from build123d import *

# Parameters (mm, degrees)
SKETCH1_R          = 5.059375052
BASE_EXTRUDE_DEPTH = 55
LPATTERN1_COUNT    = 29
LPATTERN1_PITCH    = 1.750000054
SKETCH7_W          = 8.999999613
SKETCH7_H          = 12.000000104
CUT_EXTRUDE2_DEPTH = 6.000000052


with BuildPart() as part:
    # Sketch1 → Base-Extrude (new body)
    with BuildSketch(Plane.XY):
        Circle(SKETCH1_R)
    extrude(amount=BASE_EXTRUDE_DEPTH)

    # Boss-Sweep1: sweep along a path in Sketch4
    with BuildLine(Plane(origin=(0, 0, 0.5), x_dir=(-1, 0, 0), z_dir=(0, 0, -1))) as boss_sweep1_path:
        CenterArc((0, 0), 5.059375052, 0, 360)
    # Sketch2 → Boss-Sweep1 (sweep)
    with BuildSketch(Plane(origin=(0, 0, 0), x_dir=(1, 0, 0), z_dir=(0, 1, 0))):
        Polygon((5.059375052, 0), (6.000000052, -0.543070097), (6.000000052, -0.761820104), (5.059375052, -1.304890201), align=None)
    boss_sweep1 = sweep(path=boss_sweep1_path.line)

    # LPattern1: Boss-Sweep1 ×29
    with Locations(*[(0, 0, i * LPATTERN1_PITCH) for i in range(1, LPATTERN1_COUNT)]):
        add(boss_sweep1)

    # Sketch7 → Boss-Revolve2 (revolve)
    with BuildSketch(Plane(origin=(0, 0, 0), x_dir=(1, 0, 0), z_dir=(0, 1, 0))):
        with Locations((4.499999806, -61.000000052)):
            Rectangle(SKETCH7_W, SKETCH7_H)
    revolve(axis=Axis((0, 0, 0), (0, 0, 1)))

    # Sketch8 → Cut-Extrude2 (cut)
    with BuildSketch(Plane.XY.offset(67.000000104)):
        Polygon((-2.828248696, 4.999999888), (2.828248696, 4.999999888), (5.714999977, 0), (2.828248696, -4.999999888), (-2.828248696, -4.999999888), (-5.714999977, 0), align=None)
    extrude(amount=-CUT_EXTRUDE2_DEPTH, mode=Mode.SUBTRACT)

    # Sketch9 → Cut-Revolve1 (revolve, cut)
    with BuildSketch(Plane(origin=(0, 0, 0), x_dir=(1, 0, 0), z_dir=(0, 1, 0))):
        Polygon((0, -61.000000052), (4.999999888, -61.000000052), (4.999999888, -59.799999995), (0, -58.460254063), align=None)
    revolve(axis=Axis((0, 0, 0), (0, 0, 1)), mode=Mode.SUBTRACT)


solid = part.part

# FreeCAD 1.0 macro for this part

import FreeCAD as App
import Part
import Sketcher
from FreeCAD import Vector
Q = App.Units.Quantity


def add_polygon(sketch, points):
    """Adds a closed chain of lines whose ends are joined by coincident constraints."""
    first, n = sketch.GeometryCount, len(points)
    for a, b in zip(points, points[1:] + points[:1]):
        sketch.addGeometry(Part.LineSegment(App.Vector(*a, 0), App.Vector(*b, 0)), False)
    for i in range(n):
        sketch.addConstraint(Sketcher.Constraint("Coincident", first + i, 2, first + (i + 1) % n, 1))

doc = App.newDocument("Part")
body = doc.addObject("PartDesign::Body", "Body")

sketch1 = doc.addObject("Sketcher::SketchObject", "Sketch")
body.addObject(sketch1)
sketch1.AttachmentSupport = (doc.XY_Plane, [""])
sketch1.MapMode = "FlatFace"
sketch1.addGeometry(Part.Circle(Vector(0, 0, 0), Vector(0, 0, 1), 5.059375), False)
sketch1.addConstraint(Sketcher.Constraint("Coincident", 0, 3, -1, 1))
sketch1.addConstraint(Sketcher.Constraint("Diameter", 0, Q("10.11875 mm")))
pad1 = doc.addObject("PartDesign::Pad", "Pad")
body.addObject(pad1)
pad1.Profile = sketch1
pad1.Length = 55

sketch2 = doc.addObject("Sketcher::SketchObject", "Sketch001")
body.addObject(sketch2)
sketch2.AttachmentSupport = (doc.XZ_Plane, [""])
sketch2.MapMode = "FlatFace"
add_polygon(sketch2, [(6, 0.54307), (5.059375, 0), (5.059375, 1.30489), (6, 0.76182)])
sketch2.addConstraint(Sketcher.Constraint("Vertical", 1))
sketch2.addConstraint(Sketcher.Constraint("Vertical", 3))
sketch2.addConstraint(Sketcher.Constraint("PointOnObject", 0, 2, -1))
sketch2.addConstraint(Sketcher.Constraint("Equal", 0, 2))
sketch2.addConstraint(Sketcher.Constraint("Angle", 0, Q("-150 deg")))
sketch2.addConstraint(Sketcher.Constraint("DistanceX", -1, 1, 2, 2, Q("6 mm")))
sketch2.addConstraint(Sketcher.Constraint("DistanceY", 1, 1, 1, 2, Q("1.30489 mm")))
sketch2.addConstraint(Sketcher.Constraint("DistanceY", 3, 2, 3, 1, Q("0.21875 mm")))

sketch3 = doc.addObject("Sketcher::SketchObject", "Sketch002")
body.addObject(sketch3)
sketch3.AttachmentSupport = (doc.XY_Plane, [""])
sketch3.MapMode = "FlatFace"
sketch3.AttachmentOffset = App.Placement(Vector(0, 0, 0.5), App.Rotation())
sketch3.addGeometry(Part.Circle(Vector(0, 0, 0), Vector(0, 0, 1), 5.059375), False)
sketch3.addConstraint(Sketcher.Constraint("Coincident", 0, 3, -1, 1))
sketch3.addConstraint(Sketcher.Constraint("Diameter", 0, Q("10.11875 mm")))
doc.recompute()

additivepipe = doc.addObject("PartDesign::AdditivePipe", "AdditivePipe")
body.addObject(additivepipe)
additivepipe.Profile = sketch2
additivepipe.Spine = (sketch3, ["Edge1"])
doc.recompute()

linearpattern = doc.addObject("PartDesign::LinearPattern", "LinearPattern")
body.addObject(linearpattern)
linearpattern.Originals = [additivepipe]
linearpattern.Direction = (doc.Z_Axis, [""])
linearpattern.Mode = "offset"
linearpattern.Offset = 1.75
linearpattern.Occurrences = 29
body.Tip = linearpattern

sketch4 = doc.addObject("Sketcher::SketchObject", "Sketch003")
body.addObject(sketch4)
sketch4.AttachmentSupport = (doc.XZ_Plane, [""])
sketch4.MapMode = "FlatFace"
add_polygon(sketch4, [(0, 55), (0, 67), (9, 67), (9, 55)])
sketch4.addConstraint(Sketcher.Constraint("Vertical", 0))
sketch4.addConstraint(Sketcher.Constraint("Horizontal", 1))
sketch4.addConstraint(Sketcher.Constraint("Vertical", 2))
sketch4.addConstraint(Sketcher.Constraint("Horizontal", 3))
sketch4.addConstraint(Sketcher.Constraint("PointOnObject", 0, 2, -2))
sketch4.addConstraint(Sketcher.Constraint("DistanceX", 1, 1, 1, 2, Q("9 mm")))
sketch4.addConstraint(Sketcher.Constraint("DistanceY", 0, 1, 0, 2, Q("12 mm")))
sketch4.addConstraint(Sketcher.Constraint("DistanceY", -1, 1, 0, 2, Q("67 mm")))
revolution = doc.addObject("PartDesign::Revolution", "Revolution")
body.addObject(revolution)
revolution.Profile = sketch4
revolution.ReferenceAxis = (sketch4, ["V_Axis"])
revolution.Angle = 360

sketch5 = doc.addObject("Sketcher::SketchObject", "Sketch004")
body.addObject(sketch5)
sketch5.AttachmentSupport = (doc.XY_Plane, [""])
sketch5.MapMode = "FlatFace"
sketch5.AttachmentOffset = App.Placement(Vector(0, 0, 67), App.Rotation())
add_polygon(sketch5, [(2.828249, 5), (-2.828249, 5), (-5.715, 0), (-2.828249, -5), (2.828249, -5), (5.715, 0)])
sketch5.addConstraint(Sketcher.Constraint("Horizontal", 0))
sketch5.addConstraint(Sketcher.Constraint("Horizontal", 3))
sketch5.addConstraint(Sketcher.Constraint("Symmetric", 0, 2, 3, 2, -1, 1))
sketch5.addConstraint(Sketcher.Constraint("Symmetric", 1, 2, 4, 2, -1, 1))
sketch5.addConstraint(Sketcher.Constraint("PointOnObject", 1, 2, -1))
sketch5.addConstraint(Sketcher.Constraint("Parallel", 2, 5))
sketch5.addConstraint(Sketcher.Constraint("Vertical", 0, 2, 2, 2))
sketch5.addConstraint(Sketcher.Constraint("Angle", 1, Q("-120 deg")))
sketch5.addConstraint(Sketcher.Constraint("DistanceY", -1, 1, 0, 2, Q("5 mm")))
sketch5.addConstraint(Sketcher.Constraint("DistanceX", 1, 2, 4, 2, Q("11.43 mm")))
pocket1 = doc.addObject("PartDesign::Pocket", "Pocket")
body.addObject(pocket1)
pocket1.Profile = sketch5
pocket1.Length = 6

sketch6 = doc.addObject("Sketcher::SketchObject", "Sketch005")
body.addObject(sketch6)
sketch6.AttachmentSupport = (doc.XZ_Plane, [""])
sketch6.MapMode = "FlatFace"
add_polygon(sketch6, [(0, 61), (5, 61), (5, 59.8), (0, 58.460254)])
sketch6.addConstraint(Sketcher.Constraint("Horizontal", 0))
sketch6.addConstraint(Sketcher.Constraint("Vertical", 1))
sketch6.addConstraint(Sketcher.Constraint("Vertical", 3))
sketch6.addConstraint(Sketcher.Constraint("PointOnObject", 2, 2, -2))
sketch6.addConstraint(Sketcher.Constraint("DistanceX", 0, 1, 0, 2, Q("5 mm")))
sketch6.addConstraint(Sketcher.Constraint("Angle", 2, Q("-165 deg")))
sketch6.addConstraint(Sketcher.Constraint("DistanceY", 1, 2, 1, 1, Q("1.2 mm")))
sketch6.addConstraint(Sketcher.Constraint("DistanceY", -1, 1, 0, 2, Q("61 mm")))
groove = doc.addObject("PartDesign::Groove", "Groove")
body.addObject(groove)
groove.Profile = sketch6
groove.ReferenceAxis = (sketch6, ["V_Axis"])
groove.Angle = 360

doc.recompute()
